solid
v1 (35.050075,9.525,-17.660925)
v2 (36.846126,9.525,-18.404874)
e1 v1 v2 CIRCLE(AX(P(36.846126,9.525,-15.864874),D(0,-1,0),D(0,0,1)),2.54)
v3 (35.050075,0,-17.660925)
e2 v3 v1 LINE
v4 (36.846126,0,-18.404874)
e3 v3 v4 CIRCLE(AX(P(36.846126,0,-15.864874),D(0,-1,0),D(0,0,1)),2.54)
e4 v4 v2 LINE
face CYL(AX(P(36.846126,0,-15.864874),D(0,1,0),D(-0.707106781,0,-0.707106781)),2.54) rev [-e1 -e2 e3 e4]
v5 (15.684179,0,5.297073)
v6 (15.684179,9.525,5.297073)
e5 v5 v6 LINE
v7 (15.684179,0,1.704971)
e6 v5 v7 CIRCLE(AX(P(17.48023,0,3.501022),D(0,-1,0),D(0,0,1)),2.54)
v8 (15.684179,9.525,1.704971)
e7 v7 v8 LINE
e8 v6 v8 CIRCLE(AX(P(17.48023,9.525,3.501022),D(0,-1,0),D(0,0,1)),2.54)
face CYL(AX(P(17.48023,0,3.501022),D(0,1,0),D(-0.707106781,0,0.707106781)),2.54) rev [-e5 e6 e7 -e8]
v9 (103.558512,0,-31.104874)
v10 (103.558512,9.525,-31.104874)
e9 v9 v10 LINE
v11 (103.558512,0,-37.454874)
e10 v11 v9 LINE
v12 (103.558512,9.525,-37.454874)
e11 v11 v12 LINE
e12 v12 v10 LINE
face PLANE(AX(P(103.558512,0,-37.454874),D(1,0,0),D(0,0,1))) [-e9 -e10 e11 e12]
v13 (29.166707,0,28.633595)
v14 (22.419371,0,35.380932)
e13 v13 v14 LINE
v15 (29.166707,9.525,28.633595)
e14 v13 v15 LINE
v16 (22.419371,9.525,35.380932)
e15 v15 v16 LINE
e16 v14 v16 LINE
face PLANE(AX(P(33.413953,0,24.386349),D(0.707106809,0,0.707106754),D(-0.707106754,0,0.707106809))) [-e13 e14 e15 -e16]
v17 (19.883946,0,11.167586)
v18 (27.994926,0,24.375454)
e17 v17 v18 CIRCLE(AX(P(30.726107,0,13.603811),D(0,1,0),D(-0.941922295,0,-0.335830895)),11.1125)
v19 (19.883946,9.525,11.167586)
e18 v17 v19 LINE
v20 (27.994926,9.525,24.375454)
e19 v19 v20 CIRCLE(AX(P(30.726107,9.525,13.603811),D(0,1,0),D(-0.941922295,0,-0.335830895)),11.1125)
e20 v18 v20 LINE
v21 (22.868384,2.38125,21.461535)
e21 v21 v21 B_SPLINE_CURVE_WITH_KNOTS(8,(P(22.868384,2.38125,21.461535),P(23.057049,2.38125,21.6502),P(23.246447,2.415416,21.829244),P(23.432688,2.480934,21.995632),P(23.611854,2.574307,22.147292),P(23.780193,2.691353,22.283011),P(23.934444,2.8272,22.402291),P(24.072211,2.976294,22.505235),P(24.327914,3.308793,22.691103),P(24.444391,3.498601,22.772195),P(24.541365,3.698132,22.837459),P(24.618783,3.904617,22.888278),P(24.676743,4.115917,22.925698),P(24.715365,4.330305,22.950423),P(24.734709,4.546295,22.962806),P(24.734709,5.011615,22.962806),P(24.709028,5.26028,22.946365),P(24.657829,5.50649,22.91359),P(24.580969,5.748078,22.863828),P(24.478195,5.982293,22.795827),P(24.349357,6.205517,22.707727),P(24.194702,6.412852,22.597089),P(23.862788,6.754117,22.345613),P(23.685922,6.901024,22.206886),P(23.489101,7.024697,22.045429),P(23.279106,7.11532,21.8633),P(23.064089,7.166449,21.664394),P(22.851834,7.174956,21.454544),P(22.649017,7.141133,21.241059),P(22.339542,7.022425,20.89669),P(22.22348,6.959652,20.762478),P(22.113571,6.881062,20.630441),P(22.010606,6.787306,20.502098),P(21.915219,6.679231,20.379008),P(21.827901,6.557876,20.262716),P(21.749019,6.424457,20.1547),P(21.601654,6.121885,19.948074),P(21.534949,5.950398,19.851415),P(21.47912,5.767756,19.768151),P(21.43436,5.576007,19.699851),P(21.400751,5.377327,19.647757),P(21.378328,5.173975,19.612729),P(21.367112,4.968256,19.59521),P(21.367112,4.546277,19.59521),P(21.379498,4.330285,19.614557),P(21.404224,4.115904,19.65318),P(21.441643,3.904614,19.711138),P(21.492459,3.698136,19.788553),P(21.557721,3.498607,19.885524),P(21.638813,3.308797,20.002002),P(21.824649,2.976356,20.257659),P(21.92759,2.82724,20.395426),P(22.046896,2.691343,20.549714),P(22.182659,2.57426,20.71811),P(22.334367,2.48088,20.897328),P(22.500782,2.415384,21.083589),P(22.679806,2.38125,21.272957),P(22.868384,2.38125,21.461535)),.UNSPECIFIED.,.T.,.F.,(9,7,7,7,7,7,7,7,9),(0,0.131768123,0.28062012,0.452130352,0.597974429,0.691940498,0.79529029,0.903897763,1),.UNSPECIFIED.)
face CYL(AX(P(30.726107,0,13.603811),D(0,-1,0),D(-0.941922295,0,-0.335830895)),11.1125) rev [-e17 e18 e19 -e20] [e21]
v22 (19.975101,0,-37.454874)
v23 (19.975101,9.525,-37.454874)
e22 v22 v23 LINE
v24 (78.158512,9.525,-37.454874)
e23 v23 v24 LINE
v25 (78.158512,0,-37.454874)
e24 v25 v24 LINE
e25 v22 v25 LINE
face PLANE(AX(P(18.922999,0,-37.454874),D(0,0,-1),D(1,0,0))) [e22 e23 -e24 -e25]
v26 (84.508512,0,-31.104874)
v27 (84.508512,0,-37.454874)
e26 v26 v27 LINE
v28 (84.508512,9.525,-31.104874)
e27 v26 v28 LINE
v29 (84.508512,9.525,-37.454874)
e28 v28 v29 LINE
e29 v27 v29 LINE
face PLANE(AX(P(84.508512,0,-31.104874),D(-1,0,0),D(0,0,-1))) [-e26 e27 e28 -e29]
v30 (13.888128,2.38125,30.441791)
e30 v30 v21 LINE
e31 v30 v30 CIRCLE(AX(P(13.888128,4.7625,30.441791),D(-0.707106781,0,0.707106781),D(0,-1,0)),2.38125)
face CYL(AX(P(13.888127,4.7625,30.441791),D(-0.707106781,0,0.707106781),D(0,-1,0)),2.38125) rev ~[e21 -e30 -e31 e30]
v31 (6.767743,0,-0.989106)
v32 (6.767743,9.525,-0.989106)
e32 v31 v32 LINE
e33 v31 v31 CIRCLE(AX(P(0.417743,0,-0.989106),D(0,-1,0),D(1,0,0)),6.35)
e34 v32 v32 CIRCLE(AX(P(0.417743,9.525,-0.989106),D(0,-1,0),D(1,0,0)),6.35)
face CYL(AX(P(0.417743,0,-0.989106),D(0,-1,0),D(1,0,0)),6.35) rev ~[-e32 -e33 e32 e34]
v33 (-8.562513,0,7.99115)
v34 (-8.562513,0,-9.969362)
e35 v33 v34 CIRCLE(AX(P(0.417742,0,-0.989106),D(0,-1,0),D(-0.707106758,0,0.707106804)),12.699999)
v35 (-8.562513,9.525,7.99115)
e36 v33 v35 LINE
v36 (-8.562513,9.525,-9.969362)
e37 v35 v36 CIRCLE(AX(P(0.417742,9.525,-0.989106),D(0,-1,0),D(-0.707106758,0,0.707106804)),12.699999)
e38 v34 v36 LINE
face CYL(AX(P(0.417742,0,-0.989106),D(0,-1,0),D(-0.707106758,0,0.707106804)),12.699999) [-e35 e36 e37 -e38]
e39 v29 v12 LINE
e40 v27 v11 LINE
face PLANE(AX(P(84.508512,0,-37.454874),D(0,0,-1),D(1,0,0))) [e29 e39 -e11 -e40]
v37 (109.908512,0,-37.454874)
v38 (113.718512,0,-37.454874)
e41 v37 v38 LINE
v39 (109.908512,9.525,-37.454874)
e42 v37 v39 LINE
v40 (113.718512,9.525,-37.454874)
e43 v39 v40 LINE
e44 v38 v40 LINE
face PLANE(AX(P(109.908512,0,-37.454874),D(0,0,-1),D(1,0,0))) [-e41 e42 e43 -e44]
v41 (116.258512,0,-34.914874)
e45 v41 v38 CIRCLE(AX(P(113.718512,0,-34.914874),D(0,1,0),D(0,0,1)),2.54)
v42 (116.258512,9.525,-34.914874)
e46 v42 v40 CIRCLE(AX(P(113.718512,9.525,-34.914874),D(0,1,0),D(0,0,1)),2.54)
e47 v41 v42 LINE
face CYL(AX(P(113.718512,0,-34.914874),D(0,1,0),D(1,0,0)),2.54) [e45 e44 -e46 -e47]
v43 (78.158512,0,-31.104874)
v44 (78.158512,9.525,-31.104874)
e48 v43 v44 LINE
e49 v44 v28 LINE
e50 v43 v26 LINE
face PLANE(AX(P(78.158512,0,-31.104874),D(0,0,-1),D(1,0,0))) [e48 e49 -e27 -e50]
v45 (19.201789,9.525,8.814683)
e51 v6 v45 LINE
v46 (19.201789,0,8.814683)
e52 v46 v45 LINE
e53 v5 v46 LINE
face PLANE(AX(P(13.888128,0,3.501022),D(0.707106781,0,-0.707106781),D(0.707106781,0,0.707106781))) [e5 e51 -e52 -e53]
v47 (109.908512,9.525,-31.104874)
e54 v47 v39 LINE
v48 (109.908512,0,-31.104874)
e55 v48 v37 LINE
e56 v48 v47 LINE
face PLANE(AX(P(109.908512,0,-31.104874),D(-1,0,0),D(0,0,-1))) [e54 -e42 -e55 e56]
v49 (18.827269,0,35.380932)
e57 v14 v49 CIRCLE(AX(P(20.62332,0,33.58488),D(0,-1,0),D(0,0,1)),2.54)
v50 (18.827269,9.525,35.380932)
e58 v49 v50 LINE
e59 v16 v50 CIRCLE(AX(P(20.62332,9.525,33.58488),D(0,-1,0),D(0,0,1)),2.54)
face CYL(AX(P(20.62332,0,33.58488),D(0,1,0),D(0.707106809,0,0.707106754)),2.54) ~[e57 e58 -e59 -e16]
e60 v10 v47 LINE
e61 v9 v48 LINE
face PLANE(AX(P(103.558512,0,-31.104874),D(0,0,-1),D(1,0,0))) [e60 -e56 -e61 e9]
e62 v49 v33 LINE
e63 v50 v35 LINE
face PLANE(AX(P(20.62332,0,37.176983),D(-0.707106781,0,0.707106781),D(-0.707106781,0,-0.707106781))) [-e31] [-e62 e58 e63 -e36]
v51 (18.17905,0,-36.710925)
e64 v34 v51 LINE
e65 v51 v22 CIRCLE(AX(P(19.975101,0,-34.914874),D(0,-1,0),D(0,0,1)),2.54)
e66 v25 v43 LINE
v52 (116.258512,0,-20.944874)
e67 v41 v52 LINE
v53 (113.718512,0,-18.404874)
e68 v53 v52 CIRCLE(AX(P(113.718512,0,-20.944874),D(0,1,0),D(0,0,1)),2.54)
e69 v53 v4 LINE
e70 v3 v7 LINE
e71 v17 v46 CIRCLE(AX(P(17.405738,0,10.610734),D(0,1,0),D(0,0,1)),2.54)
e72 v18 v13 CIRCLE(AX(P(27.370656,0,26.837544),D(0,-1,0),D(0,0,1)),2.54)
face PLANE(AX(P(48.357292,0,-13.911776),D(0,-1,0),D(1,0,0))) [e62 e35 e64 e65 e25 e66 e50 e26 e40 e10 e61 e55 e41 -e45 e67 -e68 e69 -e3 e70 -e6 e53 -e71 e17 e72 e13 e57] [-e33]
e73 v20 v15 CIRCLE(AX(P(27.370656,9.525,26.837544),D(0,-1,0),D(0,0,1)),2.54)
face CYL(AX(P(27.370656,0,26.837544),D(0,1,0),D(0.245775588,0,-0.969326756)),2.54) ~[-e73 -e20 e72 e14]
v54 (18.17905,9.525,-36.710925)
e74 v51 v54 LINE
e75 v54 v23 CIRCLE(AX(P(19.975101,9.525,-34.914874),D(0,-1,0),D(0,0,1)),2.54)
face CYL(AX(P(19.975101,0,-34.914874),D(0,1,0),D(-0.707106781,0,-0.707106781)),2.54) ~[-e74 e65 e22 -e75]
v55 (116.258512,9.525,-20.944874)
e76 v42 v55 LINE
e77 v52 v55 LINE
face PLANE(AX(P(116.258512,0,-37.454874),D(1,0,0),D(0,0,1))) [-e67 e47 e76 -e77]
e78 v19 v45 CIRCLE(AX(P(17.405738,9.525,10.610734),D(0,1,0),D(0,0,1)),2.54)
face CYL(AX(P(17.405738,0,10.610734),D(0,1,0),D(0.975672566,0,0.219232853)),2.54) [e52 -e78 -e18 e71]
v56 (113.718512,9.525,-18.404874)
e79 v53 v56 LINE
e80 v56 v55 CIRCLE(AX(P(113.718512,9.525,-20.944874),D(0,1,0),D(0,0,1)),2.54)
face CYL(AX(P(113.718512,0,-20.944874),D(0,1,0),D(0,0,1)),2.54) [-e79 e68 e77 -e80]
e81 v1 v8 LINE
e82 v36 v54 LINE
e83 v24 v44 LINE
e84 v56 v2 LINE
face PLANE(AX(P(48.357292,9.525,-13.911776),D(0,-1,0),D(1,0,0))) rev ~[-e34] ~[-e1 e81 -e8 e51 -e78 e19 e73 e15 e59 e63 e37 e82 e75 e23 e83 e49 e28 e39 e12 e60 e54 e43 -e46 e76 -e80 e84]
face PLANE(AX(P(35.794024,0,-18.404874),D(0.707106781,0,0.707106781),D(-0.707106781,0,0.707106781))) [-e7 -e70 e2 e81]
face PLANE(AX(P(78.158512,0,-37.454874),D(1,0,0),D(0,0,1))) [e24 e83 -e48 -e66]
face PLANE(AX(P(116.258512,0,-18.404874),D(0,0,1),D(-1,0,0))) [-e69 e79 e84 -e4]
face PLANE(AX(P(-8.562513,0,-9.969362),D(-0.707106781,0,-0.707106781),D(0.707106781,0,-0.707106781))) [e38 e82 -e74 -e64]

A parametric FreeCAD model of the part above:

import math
import FreeCAD as App
import Part
import Sketcher

V = App.Vector
Q = App.Units.Quantity


def edges_at(feature, points):
    """Names of the edges that pass closest to the given points."""
    edges = feature.Shape.Edges
    near = lambda p: min(range(len(edges)), key=lambda i: edges[i].distToShape(Part.Vertex(*p))[0])
    return sorted({f"Edge{near(p) + 1}" for p in points})

doc = App.newDocument("Part")
body = doc.addObject("PartDesign::Body", "Body")

# Sketch on XZ plane
sketch1 = body.newObject("Sketcher::SketchObject", "Sketch")
sketch1.AttachmentSupport = (doc.getObject("XZ_Plane"), [""])
sketch1.MapMode = "FlatFace"
sketch1.addGeometry([
    Part.ArcOfCircle(Part.Circle(V(30.726107, 13.603811, 0), V(0, 0, 1), 11.1125), math.radians(76.002716), math.radians(199.623072)),  # 0
    Part.LineSegment(V(33.413953, 24.386349, 0), V(20.62332, 37.176983, 0)),  # 1
    Part.LineSegment(V(20.62332, 37.176983, 0), V(-8.562513, 7.99115, 0)),  # 2
    Part.ArcOfCircle(Part.Circle(V(0.417742, -0.989106, 0), V(0, 0, 1), 12.699999), math.radians(134.999998), math.radians(225.000002)),  # 3
    Part.LineSegment(V(-8.562513, -9.969362, 0), V(18.922999, -37.454874, 0)),  # 4
    Part.LineSegment(V(18.922999, -37.454874, 0), V(78.158512, -37.454874, 0)),  # 5
    Part.LineSegment(V(78.158512, -37.454874, 0), V(78.158512, -31.104874, 0)),  # 6
    Part.LineSegment(V(78.158512, -31.104874, 0), V(84.508512, -31.104874, 0)),  # 7
    Part.LineSegment(V(84.508512, -31.104874, 0), V(84.508512, -37.454874, 0)),  # 8
    Part.LineSegment(V(84.508512, -37.454874, 0), V(103.558512, -37.454874, 0)),  # 9
    Part.LineSegment(V(103.558512, -37.454874, 0), V(103.558512, -31.104874, 0)),  # 10
    Part.LineSegment(V(103.558512, -31.104874, 0), V(109.908512, -31.104874, 0)),  # 11
    Part.LineSegment(V(109.908512, -31.104874, 0), V(109.908512, -37.454874, 0)),  # 12
    Part.LineSegment(V(109.908512, -37.454874, 0), V(116.258512, -37.454874, 0)),  # 13
    Part.LineSegment(V(116.258512, -37.454874, 0), V(116.258512, -18.404874, 0)),  # 14
    Part.LineSegment(V(116.258512, -18.404874, 0), V(35.794024, -18.404874, 0)),  # 15
    Part.LineSegment(V(35.794024, -18.404874, 0), V(13.888128, 3.501022, 0)),  # 16
    Part.LineSegment(V(13.888128, 3.501022, 0), V(20.258996, 9.87189, 0)),  # 17
    Part.Circle(V(0.417743, -0.989106, 0), V(0, 0, 1), 6.35),  # 18
], False)
sketch1.addConstraint([
    Sketcher.Constraint("Coincident", 0, 1, 1, 1),
    Sketcher.Constraint("Coincident", 1, 2, 2, 1),
    Sketcher.Constraint("Tangent", 2, 2, 3, 1),
    Sketcher.Constraint("Tangent", 3, 2, 4, 1),
    Sketcher.Constraint("Coincident", 4, 2, 5, 1),
    Sketcher.Constraint("Coincident", 5, 2, 6, 1),
    Sketcher.Constraint("Coincident", 6, 2, 7, 1),
    Sketcher.Constraint("Coincident", 7, 2, 8, 1),
    Sketcher.Constraint("Coincident", 8, 2, 9, 1),
    Sketcher.Constraint("Coincident", 9, 2, 10, 1),
    Sketcher.Constraint("Coincident", 10, 2, 11, 1),
    Sketcher.Constraint("Coincident", 11, 2, 12, 1),
    Sketcher.Constraint("Coincident", 12, 2, 13, 1),
    Sketcher.Constraint("Coincident", 13, 2, 14, 1),
    Sketcher.Constraint("Coincident", 14, 2, 15, 1),
    Sketcher.Constraint("Coincident", 15, 2, 16, 1),
    Sketcher.Constraint("Coincident", 16, 2, 17, 1),
    Sketcher.Constraint("Coincident", 17, 2, 0, 2),
    Sketcher.Constraint("Horizontal", 5),
    Sketcher.Constraint("Vertical", 6),
    Sketcher.Constraint("Horizontal", 7),
    Sketcher.Constraint("Vertical", 8),
    Sketcher.Constraint("Horizontal", 9),
    Sketcher.Constraint("Vertical", 10),
    Sketcher.Constraint("Horizontal", 11),
    Sketcher.Constraint("Vertical", 12),
    Sketcher.Constraint("Horizontal", 13),
    Sketcher.Constraint("Vertical", 14),
    Sketcher.Constraint("Horizontal", 15),
    Sketcher.Constraint("Coincident", 18, 3, 3, 3),
    Sketcher.Constraint("Perpendicular", 1, 2),
    Sketcher.Constraint("Perpendicular", 2, 4),
    Sketcher.Constraint("Parallel", 4, 16),
    Sketcher.Constraint("Perpendicular", 16, 17),
    Sketcher.Constraint("Horizontal", 5, 2, 8, 2),
    Sketcher.Constraint("Horizontal", 7, 2, 10, 2),
    Sketcher.Constraint("Horizontal", 9, 2, 12, 2),
    Sketcher.Constraint("Vertical", 2, 2, 3, 2),
    Sketcher.Constraint("Equal", 7, 11),
    Sketcher.Constraint("Equal", 11, 13),
    Sketcher.Constraint("Equal", 13, 6),
    Sketcher.Constraint("Equal", 9, 14),
    Sketcher.Constraint("Diameter", 18, Q("0.5 in")),
    Sketcher.Constraint("Radius", 3, Q("0.5 in")),
    Sketcher.Constraint("Radius", 0, Q("0.4375 in")),
    Sketcher.Constraint("DistanceX", 5, 2, 9, 2, Q("1 in")),
    Sketcher.Constraint("DistanceX", 7, 1, 7, 2, Q("0.25 in")),
    Sketcher.Constraint("Distance", 2, Q("1.625 in")),
    Sketcher.Constraint("DistanceX", -1, 1, 4, 2, Q("0.745 in")),
    Sketcher.Constraint("DistanceY", 2, 2, 0, 1, Q("16.395199 mm")),
    Sketcher.Constraint("DistanceX", 5, 1, 5, 2, Q("59.235513 mm")),
    Sketcher.Constraint("DistanceX", 15, 2, 15, 1, Q("80.464488 mm")),
    Sketcher.Constraint("DistanceY", -1, 1, 0, 3, Q("13.603811 mm")),
    Sketcher.Constraint("DistanceY", -1, 1, 0, 1, Q("24.386349 mm")),
    Sketcher.Constraint("DistanceX", -1, 1, 1, 2, Q("20.62332 mm")),
    Sketcher.Constraint("DistanceY", -1, 1, 16, 2, Q("3.501022 mm")),
])
pad1 = body.newObject("PartDesign::Pad", "Pad")
pad1.Profile = sketch1
pad1.Length = Q("0.375 in")
pad1.Reversed = True

# Sketch on an angled plane
sketch2 = body.newObject("Sketcher::SketchObject", "Sketch001")
sketch2.Placement = App.Placement(V(-8.276832, 0, 8.276832), App.Rotation(V(0, -1, 0), V(0.707106781, 0, 0.707106781), V(-0.707106781, 0, 0.707106781), "ZXY"))
sketch2.addGeometry(Part.Circle(V(-4.7625, 31.345986, 0), V(0, 0, 1), 2.38125), False)
sketch2.addConstraint([
    Sketcher.Constraint("Diameter", 0, Q("0.1875 in")),
    Sketcher.Constraint("DistanceX", 0, 3, -1, 1, Q("0.1875 in")),
    Sketcher.Constraint("DistanceY", -1, 1, 0, 3, Q("31.345986 mm")),
])
pocket1 = body.newObject("PartDesign::Pocket", "Pocket")
pocket1.Profile = sketch2
pocket1.Length = Q("1 in")
doc.recompute()

fillet = body.newObject("PartDesign::Fillet", "Fillet")
fillet.Base = (pocket1, edges_at(pocket1, [(33.414, 4.763, 24.386), (20.259, 4.763, 9.872)]))
fillet.Radius = Q("0.1 in")
doc.recompute()

fillet2 = body.newObject("PartDesign::Fillet", "Fillet001")
fillet2.Base = (fillet, edges_at(fillet, [
    (13.888, 4.763, 3.501),
    (35.794, 4.763, -18.405),
    (18.923, 4.763, -37.455),
    (116.259, 4.763, -18.405),
    (116.259, 4.763, -37.455),
    (20.623, 4.763, 37.177),
]))
fillet2.Radius = Q("0.1 in")

doc.recompute()
